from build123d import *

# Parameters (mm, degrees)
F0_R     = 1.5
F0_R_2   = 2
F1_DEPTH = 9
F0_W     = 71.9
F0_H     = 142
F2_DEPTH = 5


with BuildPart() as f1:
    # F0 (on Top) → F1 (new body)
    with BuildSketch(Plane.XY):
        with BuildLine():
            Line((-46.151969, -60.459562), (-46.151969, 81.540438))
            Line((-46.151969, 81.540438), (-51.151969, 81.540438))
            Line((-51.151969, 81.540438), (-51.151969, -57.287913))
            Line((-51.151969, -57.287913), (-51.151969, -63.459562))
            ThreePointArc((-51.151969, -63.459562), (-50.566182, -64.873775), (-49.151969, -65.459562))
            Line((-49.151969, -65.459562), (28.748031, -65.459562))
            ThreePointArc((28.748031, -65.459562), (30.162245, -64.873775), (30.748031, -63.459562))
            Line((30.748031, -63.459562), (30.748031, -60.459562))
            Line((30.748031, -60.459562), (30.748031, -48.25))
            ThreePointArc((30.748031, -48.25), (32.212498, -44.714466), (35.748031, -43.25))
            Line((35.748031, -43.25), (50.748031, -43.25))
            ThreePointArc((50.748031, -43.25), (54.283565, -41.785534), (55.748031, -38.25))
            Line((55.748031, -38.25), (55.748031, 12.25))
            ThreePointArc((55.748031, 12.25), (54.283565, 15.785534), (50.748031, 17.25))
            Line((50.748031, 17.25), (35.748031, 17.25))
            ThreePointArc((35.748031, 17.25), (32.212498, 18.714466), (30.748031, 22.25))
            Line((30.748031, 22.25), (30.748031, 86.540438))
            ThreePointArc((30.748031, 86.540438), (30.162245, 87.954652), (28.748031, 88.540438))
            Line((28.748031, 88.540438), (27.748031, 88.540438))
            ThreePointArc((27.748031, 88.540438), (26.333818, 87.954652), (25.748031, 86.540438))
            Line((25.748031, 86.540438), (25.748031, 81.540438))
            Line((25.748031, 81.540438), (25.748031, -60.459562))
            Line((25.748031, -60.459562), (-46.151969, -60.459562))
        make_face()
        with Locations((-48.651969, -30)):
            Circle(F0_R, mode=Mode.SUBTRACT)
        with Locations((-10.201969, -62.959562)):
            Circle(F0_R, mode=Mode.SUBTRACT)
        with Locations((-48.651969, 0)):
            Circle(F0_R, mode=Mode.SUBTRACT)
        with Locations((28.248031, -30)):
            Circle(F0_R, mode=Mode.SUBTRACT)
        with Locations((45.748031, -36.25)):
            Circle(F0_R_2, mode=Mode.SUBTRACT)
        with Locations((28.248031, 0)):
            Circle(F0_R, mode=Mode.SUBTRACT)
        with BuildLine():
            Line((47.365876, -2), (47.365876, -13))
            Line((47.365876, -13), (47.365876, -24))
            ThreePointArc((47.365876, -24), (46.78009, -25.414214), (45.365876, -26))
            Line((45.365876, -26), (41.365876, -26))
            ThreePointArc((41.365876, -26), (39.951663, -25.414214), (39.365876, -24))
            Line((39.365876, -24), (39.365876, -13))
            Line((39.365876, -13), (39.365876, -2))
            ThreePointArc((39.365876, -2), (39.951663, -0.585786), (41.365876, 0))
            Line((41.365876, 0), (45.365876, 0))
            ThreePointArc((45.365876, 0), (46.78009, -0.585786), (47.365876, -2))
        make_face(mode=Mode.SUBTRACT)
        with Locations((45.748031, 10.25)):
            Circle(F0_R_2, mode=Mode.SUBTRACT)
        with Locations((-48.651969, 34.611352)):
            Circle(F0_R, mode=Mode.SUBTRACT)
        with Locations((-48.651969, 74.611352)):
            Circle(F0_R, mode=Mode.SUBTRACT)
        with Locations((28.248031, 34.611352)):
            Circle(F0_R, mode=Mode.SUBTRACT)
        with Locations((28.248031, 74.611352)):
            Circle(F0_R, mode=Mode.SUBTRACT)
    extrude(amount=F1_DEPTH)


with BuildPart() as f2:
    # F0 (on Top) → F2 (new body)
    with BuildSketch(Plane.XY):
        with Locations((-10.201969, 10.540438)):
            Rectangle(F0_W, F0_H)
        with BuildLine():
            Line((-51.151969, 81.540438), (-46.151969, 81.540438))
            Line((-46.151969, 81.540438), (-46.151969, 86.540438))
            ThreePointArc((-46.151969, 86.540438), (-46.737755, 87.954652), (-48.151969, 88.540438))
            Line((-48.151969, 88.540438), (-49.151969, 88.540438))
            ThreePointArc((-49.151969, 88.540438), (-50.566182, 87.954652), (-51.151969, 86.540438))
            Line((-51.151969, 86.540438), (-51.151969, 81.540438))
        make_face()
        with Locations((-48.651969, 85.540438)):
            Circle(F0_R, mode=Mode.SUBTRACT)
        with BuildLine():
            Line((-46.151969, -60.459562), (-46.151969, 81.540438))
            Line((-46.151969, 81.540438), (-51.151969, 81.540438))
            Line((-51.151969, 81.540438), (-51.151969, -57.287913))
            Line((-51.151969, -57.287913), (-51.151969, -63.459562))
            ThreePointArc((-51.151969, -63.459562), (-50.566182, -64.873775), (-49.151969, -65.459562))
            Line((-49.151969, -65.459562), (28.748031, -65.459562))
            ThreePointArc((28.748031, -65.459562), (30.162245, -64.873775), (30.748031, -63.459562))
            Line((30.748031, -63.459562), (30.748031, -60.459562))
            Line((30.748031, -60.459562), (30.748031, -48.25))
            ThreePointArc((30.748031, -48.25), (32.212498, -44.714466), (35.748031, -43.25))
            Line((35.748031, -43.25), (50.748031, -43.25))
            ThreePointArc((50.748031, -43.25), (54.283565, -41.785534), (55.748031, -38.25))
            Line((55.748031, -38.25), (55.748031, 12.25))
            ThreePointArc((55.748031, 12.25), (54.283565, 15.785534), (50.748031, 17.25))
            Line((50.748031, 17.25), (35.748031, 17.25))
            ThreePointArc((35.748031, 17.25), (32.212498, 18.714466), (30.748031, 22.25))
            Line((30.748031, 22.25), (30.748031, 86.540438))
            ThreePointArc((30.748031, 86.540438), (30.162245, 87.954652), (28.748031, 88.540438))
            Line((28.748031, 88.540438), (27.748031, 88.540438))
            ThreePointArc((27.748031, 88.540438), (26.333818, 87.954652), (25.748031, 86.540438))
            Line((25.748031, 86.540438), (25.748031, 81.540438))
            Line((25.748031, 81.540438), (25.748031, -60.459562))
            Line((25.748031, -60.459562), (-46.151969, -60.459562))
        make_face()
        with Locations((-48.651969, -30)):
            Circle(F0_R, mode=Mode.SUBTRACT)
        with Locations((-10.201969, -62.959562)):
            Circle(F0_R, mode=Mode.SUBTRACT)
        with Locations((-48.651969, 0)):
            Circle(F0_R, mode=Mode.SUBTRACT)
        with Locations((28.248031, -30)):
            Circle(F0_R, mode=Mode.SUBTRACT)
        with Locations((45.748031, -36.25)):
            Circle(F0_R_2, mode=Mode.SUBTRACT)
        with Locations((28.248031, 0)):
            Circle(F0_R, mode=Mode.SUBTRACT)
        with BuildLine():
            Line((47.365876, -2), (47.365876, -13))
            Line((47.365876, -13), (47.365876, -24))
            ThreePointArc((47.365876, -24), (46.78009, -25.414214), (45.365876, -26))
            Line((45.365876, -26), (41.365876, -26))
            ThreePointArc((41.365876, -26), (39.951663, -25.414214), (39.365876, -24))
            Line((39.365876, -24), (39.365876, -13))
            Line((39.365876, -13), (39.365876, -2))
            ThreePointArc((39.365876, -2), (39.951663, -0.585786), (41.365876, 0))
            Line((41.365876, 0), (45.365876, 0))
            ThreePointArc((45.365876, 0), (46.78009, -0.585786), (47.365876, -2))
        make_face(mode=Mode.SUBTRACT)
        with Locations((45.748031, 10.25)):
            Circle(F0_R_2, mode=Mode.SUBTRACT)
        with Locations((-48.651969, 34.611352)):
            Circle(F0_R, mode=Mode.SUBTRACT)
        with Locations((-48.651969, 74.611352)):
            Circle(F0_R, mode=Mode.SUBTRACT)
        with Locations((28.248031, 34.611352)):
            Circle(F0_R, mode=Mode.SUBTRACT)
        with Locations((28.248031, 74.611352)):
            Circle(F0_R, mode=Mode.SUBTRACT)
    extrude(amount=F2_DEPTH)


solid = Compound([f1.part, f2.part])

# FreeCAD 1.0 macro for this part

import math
import FreeCAD as App
import Part
import Sketcher

V = App.Vector
Q = App.Units.Quantity

doc = App.newDocument("Part")
params = doc.addObject("Spreadsheet::Sheet", "Params")
for row, (alias, value) in enumerate([
    ("sketch1_diameter", "3 mm"),
    ("sketch1_diameter2", "4 mm"),
    ("sketch1_radius", "5.000001 mm"),
    ("sketch1_width", "5 mm"),
    ("sketch1_width2", "15 mm"),
    ("pad1_length", "9 mm"),
    ("sketch2_diameter", "3 mm"),
    ("sketch2_diameter2", "4 mm"),
    ("sketch2_radius", "5.000001 mm"),
    ("sketch2_width", "1 mm"),
    ("sketch2_width2", "15 mm"),
    ("pad2_length", "5 mm"),
], start=1):
    params.set(f"A{row}", alias)
    params.set(f"B{row}", "=" + value)
    params.setAlias(f"B{row}", alias)

body = doc.addObject("PartDesign::Body", "Body")

# Sketch on XY plane
sketch1 = body.newObject("Sketcher::SketchObject", "Sketch")
sketch1.AttachmentSupport = (doc.getObject("XY_Plane"), [""])
sketch1.MapMode = "FlatFace"
sketch1.addGeometry([
    Part.LineSegment(V(-46.151969, -60.459562, 0), V(-46.151969, 81.540438, 0)),  # 0
    Part.LineSegment(V(-46.151969, 81.540438, 0), V(-51.151969, 81.540438, 0)),  # 1
    Part.LineSegment(V(-51.151969, 81.540438, 0), V(-51.151969, -63.459562, 0)),  # 2
    Part.ArcOfCircle(Part.Circle(V(-49.151967, -63.45956, 0), V(0, 0, 1), 2.000002), math.radians(-179.999945), math.radians(-90.000055)),  # 3
    Part.LineSegment(V(-49.151969, -65.459562, 0), V(28.748031, -65.459562, 0)),  # 4
    Part.ArcOfCircle(Part.Circle(V(28.748031, -63.459562, 0), V(0, 0, 1), 2), math.radians(-89.999994), math.radians(-0.000006)),  # 5
    Part.LineSegment(V(30.748031, -63.459562, 0), V(30.748031, -48.25, 0)),  # 6
    Part.ArcOfCircle(Part.Circle(V(35.748032, -48.250001, 0), V(0, 0, 1), 5.000001), math.radians(90.000016), math.radians(179.999984)),  # 7
    Part.LineSegment(V(35.748031, -43.25, 0), V(50.748031, -43.25, 0)),  # 8
    Part.ArcOfCircle(Part.Circle(V(50.748031, -38.25, 0), V(0, 0, 1), 5), math.radians(-90.000004), math.radians(0.000004)),  # 9
    Part.LineSegment(V(55.748031, -38.25, 0), V(55.748031, 12.25, 0)),  # 10
    Part.ArcOfCircle(Part.Circle(V(50.748031, 12.25, 0), V(0, 0, 1), 5), math.radians(-0.000004), math.radians(90.000004)),  # 11
    Part.LineSegment(V(50.748031, 17.25, 0), V(35.748031, 17.25, 0)),  # 12
    Part.ArcOfCircle(Part.Circle(V(35.748032, 22.250001, 0), V(0, 0, 1), 5.000001), math.radians(-179.999984), math.radians(-90.000016)),  # 13
    Part.LineSegment(V(30.748031, 22.25, 0), V(30.748031, 86.540438, 0)),  # 14
    Part.ArcOfCircle(Part.Circle(V(28.748032, 86.540439, 0), V(0, 0, 1), 1.999999), math.radians(-0.000043), math.radians(90.000043)),  # 15
    Part.LineSegment(V(28.748031, 88.540438, 0), V(27.748031, 88.540438, 0)),  # 16
    Part.ArcOfCircle(Part.Circle(V(27.748031, 86.540438, 0), V(0, 0, 1), 2), math.radians(90.000006), math.radians(179.999994)),  # 17
    Part.LineSegment(V(25.748031, 86.540438, 0), V(25.748031, -60.459562, 0)),  # 18
    Part.LineSegment(V(25.748031, -60.459562, 0), V(-46.151969, -60.459562, 0)),  # 19
    Part.Circle(V(-48.651969, -30, 0), V(0, 0, 1), 1.5),  # 20
    Part.Circle(V(-10.201969, -62.959562, 0), V(0, 0, 1), 1.5),  # 21
    Part.Circle(V(-48.651969, 0, 0), V(0, 0, 1), 1.5),  # 22
    Part.Circle(V(28.248031, -30, 0), V(0, 0, 1), 1.5),  # 23
    Part.Circle(V(45.748031, -36.25, 0), V(0, 0, 1), 2),  # 24
    Part.ArcOfCircle(Part.Circle(V(45.365877, -1.999999, 0), V(0, 0, 1), 1.999999), math.radians(-0.000043), math.radians(90.000043)),  # 25
    Part.LineSegment(V(47.365876, -2, 0), V(47.365876, -24, 0)),  # 26
    Part.ArcOfCircle(Part.Circle(V(45.365877, -24.000001, 0), V(0, 0, 1), 1.999999), math.radians(-90.000043), math.radians(0.000043)),  # 27
    Part.LineSegment(V(45.365876, -26, 0), V(41.365876, -26, 0)),  # 28
    Part.ArcOfCircle(Part.Circle(V(41.365876, -24, 0), V(0, 0, 1), 2), math.radians(-179.999994), math.radians(-90.000006)),  # 29
    Part.LineSegment(V(39.365876, -24, 0), V(39.365876, -2, 0)),  # 30
    Part.ArcOfCircle(Part.Circle(V(41.365876, -2, 0), V(0, 0, 1), 2), math.radians(90.000006), math.radians(179.999994)),  # 31
    Part.LineSegment(V(41.365876, 0, 0), V(45.365876, 0, 0)),  # 32
    Part.Circle(V(28.248031, 0, 0), V(0, 0, 1), 1.5),  # 33
    Part.Circle(V(-48.651969, 34.611352, 0), V(0, 0, 1), 1.5),  # 34
    Part.Circle(V(-48.651969, 74.611352, 0), V(0, 0, 1), 1.5),  # 35
    Part.Circle(V(45.748031, 10.25, 0), V(0, 0, 1), 2),  # 36
    Part.Circle(V(28.248031, 34.611352, 0), V(0, 0, 1), 1.5),  # 37
    Part.Circle(V(28.248031, 74.611352, 0), V(0, 0, 1), 1.5),  # 38
], False)
sketch1.addConstraint([
    Sketcher.Constraint("Coincident", 0, 2, 1, 1),
    Sketcher.Constraint("Coincident", 1, 2, 2, 1),
    Sketcher.Constraint("Tangent", 2, 2, 3, 1),
    Sketcher.Constraint("Tangent", 3, 2, 4, 1),
    Sketcher.Constraint("Tangent", 4, 2, 5, 1),
    Sketcher.Constraint("Tangent", 5, 2, 6, 1),
    Sketcher.Constraint("Tangent", 6, 2, 7, 2),
    Sketcher.Constraint("Tangent", 7, 1, 8, 1),
    Sketcher.Constraint("Tangent", 8, 2, 9, 1),
    Sketcher.Constraint("Tangent", 9, 2, 10, 1),
    Sketcher.Constraint("Tangent", 10, 2, 11, 1),
    Sketcher.Constraint("Tangent", 11, 2, 12, 1),
    Sketcher.Constraint("Tangent", 12, 2, 13, 2),
    Sketcher.Constraint("Tangent", 13, 1, 14, 1),
    Sketcher.Constraint("Tangent", 14, 2, 15, 1),
    Sketcher.Constraint("Tangent", 15, 2, 16, 1),
    Sketcher.Constraint("Tangent", 16, 2, 17, 1),
    Sketcher.Constraint("Tangent", 17, 2, 18, 1),
    Sketcher.Constraint("Coincident", 18, 2, 19, 1),
    Sketcher.Constraint("Coincident", 19, 2, 0, 1),
    Sketcher.Constraint("Tangent", 25, 1, 26, 1),
    Sketcher.Constraint("Tangent", 26, 2, 27, 2),
    Sketcher.Constraint("Tangent", 27, 1, 28, 1),
    Sketcher.Constraint("Tangent", 28, 2, 29, 2),
    Sketcher.Constraint("Tangent", 29, 1, 30, 1),
    Sketcher.Constraint("Tangent", 30, 2, 31, 2),
    Sketcher.Constraint("Tangent", 31, 1, 32, 1),
    Sketcher.Constraint("Tangent", 32, 2, 25, 2),
    Sketcher.Constraint("Vertical", 0),
    Sketcher.Constraint("Horizontal", 1),
    Sketcher.Constraint("Vertical", 2),
    Sketcher.Constraint("Horizontal", 4),
    Sketcher.Constraint("Vertical", 6),
    Sketcher.Constraint("Horizontal", 8),
    Sketcher.Constraint("Vertical", 10),
    Sketcher.Constraint("Horizontal", 12),
    Sketcher.Constraint("Vertical", 14),
    Sketcher.Constraint("Horizontal", 16),
    Sketcher.Constraint("Vertical", 18),
    Sketcher.Constraint("Horizontal", 19),
    Sketcher.Constraint("Vertical", 26),
    Sketcher.Constraint("Horizontal", 28),
    Sketcher.Constraint("Vertical", 30),
    Sketcher.Constraint("Horizontal", 32),
    Sketcher.Constraint("Equal", 3, 5),
    Sketcher.Constraint("Equal", 7, 9),
    Sketcher.Constraint("Equal", 9, 11),
    Sketcher.Constraint("Equal", 11, 13),
    Sketcher.Constraint("Equal", 5, 15),
    Sketcher.Constraint("Equal", 15, 17),
    Sketcher.Constraint("Equal", 20, 21),
    Sketcher.Constraint("Equal", 21, 22),
    Sketcher.Constraint("Equal", 22, 23),
    Sketcher.Constraint("Equal", 17, 24),
    Sketcher.Constraint("Equal", 24, 25),
    Sketcher.Constraint("Equal", 25, 27),
    Sketcher.Constraint("Equal", 27, 29),
    Sketcher.Constraint("Equal", 29, 31),
    Sketcher.Constraint("Equal", 23, 33),
    Sketcher.Constraint("Equal", 33, 34),
    Sketcher.Constraint("Equal", 34, 35),
    Sketcher.Constraint("Equal", 31, 36),
    Sketcher.Constraint("Equal", 35, 37),
    Sketcher.Constraint("Equal", 37, 38),
    Sketcher.Constraint("PointOnObject", 22, 3, -1),
    Sketcher.Constraint("PointOnObject", 33, 3, -1),
    Sketcher.Constraint("PointOnObject", 31, 1, -1),
    Sketcher.Constraint("Horizontal", 20, 3, 23, 3),
    Sketcher.Constraint("Horizontal", 34, 3, 37, 3),
    Sketcher.Constraint("Horizontal", 35, 3, 38, 3),
    Sketcher.Constraint("Vertical", 7, 3, 13, 3),
    Sketcher.Constraint("Vertical", 20, 3, 22, 3),
    Sketcher.Constraint("Vertical", 23, 3, 33, 3),
    Sketcher.Constraint("Vertical", 22, 3, 34, 3),
    Sketcher.Constraint("Vertical", 34, 3, 35, 3),
    Sketcher.Constraint("Vertical", 24, 3, 36, 3),
    Sketcher.Constraint("Vertical", 33, 3, 37, 3),
    Sketcher.Constraint("Vertical", 37, 3, 38, 3),
    Sketcher.Constraint("Diameter", 20, Q("3 mm")),
    Sketcher.Constraint("Diameter", 24, Q("4 mm")),
    Sketcher.Constraint("Radius", 7, Q("5.000001 mm")),
    Sketcher.Constraint("DistanceX", 1, 2, 1, 1, Q("5 mm")),
    Sketcher.Constraint("DistanceX", 8, 1, 8, 2, Q("15 mm")),
    Sketcher.Constraint("DistanceX", 16, 2, 16, 1, Q("1 mm")),
    Sketcher.Constraint("DistanceX", 28, 2, 28, 1, Q("4 mm")),
    Sketcher.Constraint("DistanceY", 0, 1, 0, 2, Q("142 mm")),
    Sketcher.Constraint("DistanceY", 2, 2, 2, 1, Q("145 mm")),
    Sketcher.Constraint("DistanceY", 18, 2, 18, 1, Q("147 mm")),
    Sketcher.Constraint("DistanceY", 26, 2, 26, 1, Q("22 mm")),
    Sketcher.Constraint("DistanceX", 4, 1, 4, 2, Q("77.9 mm")),
    Sketcher.Constraint("DistanceY", 10, 1, 10, 2, Q("50.5 mm")),
    Sketcher.Constraint("DistanceY", 20, 3, -1, 1, Q("30 mm")),
    Sketcher.Constraint("DistanceX", 24, 3, 9, 3, Q("5 mm")),
    Sketcher.Constraint("DistanceY", 9, 3, 24, 3, Q("2 mm")),
    Sketcher.Constraint("DistanceY", 34, 3, 35, 3, Q("40 mm")),
    Sketcher.Constraint("DistanceY", 36, 3, 11, 3, Q("2 mm")),
    Sketcher.Constraint("DistanceX", 3, 3, 20, 3, Q("0.499998 mm")),
    Sketcher.Constraint("DistanceY", 3, 3, 21, 3, Q("0.499998 mm")),
    Sketcher.Constraint("DistanceX", 23, 3, 7, 3, Q("7.500001 mm")),
    Sketcher.Constraint("DistanceY", 7, 3, -1, 1, Q("48.250001 mm")),
    Sketcher.Constraint("DistanceX", 3, 3, 21, 3, Q("38.949998 mm")),
    Sketcher.Constraint("DistanceY", 6, 1, 6, 2, Q("15.209562 mm")),
    Sketcher.Constraint("DistanceX", -1, 1, 5, 3, Q("28.748031 mm")),
    Sketcher.Constraint("DistanceY", -1, 1, 34, 3, Q("34.611352 mm")),
    Sketcher.Constraint("DistanceX", -1, 1, 25, 3, Q("45.365877 mm")),
])
sketch1.setExpression("Constraints[78]", "Params.sketch1_diameter")
sketch1.setExpression("Constraints[79]", "Params.sketch1_diameter2")
sketch1.setExpression("Constraints[80]", "Params.sketch1_radius")
sketch1.setExpression("Constraints[81]", "Params.sketch1_width")
sketch1.setExpression("Constraints[82]", "Params.sketch1_width2")
pad1 = body.newObject("PartDesign::Pad", "Pad")
pad1.Profile = sketch1
pad1.setExpression("Length", "Params.pad1_length")
body2 = doc.addObject("PartDesign::Body", "Body001")

# Sketch on XY plane
sketch2 = body2.newObject("Sketcher::SketchObject", "Sketch001")
sketch2.AttachmentSupport = (doc.getObject("XY_Plane001"), [""])
sketch2.MapMode = "FlatFace"
sketch2.addGeometry([
    Part.LineSegment(V(25.748031, 81.540438, 0), V(-46.151969, 81.540438, 0)),  # 0
    Part.LineSegment(V(-46.151969, 81.540438, 0), V(-46.151969, 86.540438, 0)),  # 1
    Part.ArcOfCircle(Part.Circle(V(-48.151968, 86.540439, 0), V(0, 0, 1), 1.999999), math.radians(-0.000043), math.radians(90.000043)),  # 2
    Part.LineSegment(V(-48.151969, 88.540438, 0), V(-49.151969, 88.540438, 0)),  # 3
    Part.ArcOfCircle(Part.Circle(V(-49.151969, 86.540438, 0), V(0, 0, 1), 2), math.radians(90.000006), math.radians(179.999994)),  # 4
    Part.LineSegment(V(-51.151969, 86.540438, 0), V(-51.151969, -63.459562, 0)),  # 5
    Part.ArcOfCircle(Part.Circle(V(-49.151967, -63.45956, 0), V(0, 0, 1), 2.000002), math.radians(-179.999945), math.radians(-90.000055)),  # 6
    Part.LineSegment(V(-49.151969, -65.459562, 0), V(28.748031, -65.459562, 0)),  # 7
    Part.ArcOfCircle(Part.Circle(V(28.748031, -63.459562, 0), V(0, 0, 1), 2), math.radians(-89.999994), math.radians(-0.000006)),  # 8
    Part.LineSegment(V(30.748031, -63.459562, 0), V(30.748031, -48.25, 0)),  # 9
    Part.ArcOfCircle(Part.Circle(V(35.748032, -48.250001, 0), V(0, 0, 1), 5.000001), math.radians(90.000016), math.radians(179.999984)),  # 10
    Part.LineSegment(V(35.748031, -43.25, 0), V(50.748031, -43.25, 0)),  # 11
    Part.ArcOfCircle(Part.Circle(V(50.748031, -38.25, 0), V(0, 0, 1), 5), math.radians(-90.000004), math.radians(0.000004)),  # 12
    Part.LineSegment(V(55.748031, -38.25, 0), V(55.748031, 12.25, 0)),  # 13
    Part.ArcOfCircle(Part.Circle(V(50.748031, 12.25, 0), V(0, 0, 1), 5), math.radians(-0.000004), math.radians(90.000004)),  # 14
    Part.LineSegment(V(50.748031, 17.25, 0), V(35.748031, 17.25, 0)),  # 15
    Part.ArcOfCircle(Part.Circle(V(35.748032, 22.250001, 0), V(0, 0, 1), 5.000001), math.radians(-179.999984), math.radians(-90.000016)),  # 16
    Part.LineSegment(V(30.748031, 22.25, 0), V(30.748031, 86.540438, 0)),  # 17
    Part.ArcOfCircle(Part.Circle(V(28.748032, 86.540439, 0), V(0, 0, 1), 1.999999), math.radians(-0.000043), math.radians(90.000043)),  # 18
    Part.LineSegment(V(28.748031, 88.540438, 0), V(27.748031, 88.540438, 0)),  # 19
    Part.ArcOfCircle(Part.Circle(V(27.748031, 86.540438, 0), V(0, 0, 1), 2), math.radians(90.000006), math.radians(179.999994)),  # 20
    Part.LineSegment(V(25.748031, 86.540438, 0), V(25.748031, 81.540438, 0)),  # 21
    Part.Circle(V(-48.651969, -30, 0), V(0, 0, 1), 1.5),  # 22
    Part.Circle(V(-10.201969, -62.959562, 0), V(0, 0, 1), 1.5),  # 23
    Part.Circle(V(-48.651969, 0, 0), V(0, 0, 1), 1.5),  # 24
    Part.Circle(V(28.248031, -30, 0), V(0, 0, 1), 1.5),  # 25
    Part.Circle(V(45.748031, -36.25, 0), V(0, 0, 1), 2),  # 26
    Part.ArcOfCircle(Part.Circle(V(45.365877, -1.999999, 0), V(0, 0, 1), 1.999999), math.radians(-0.000043), math.radians(90.000043)),  # 27
    Part.LineSegment(V(47.365876, -2, 0), V(47.365876, -24, 0)),  # 28
    Part.ArcOfCircle(Part.Circle(V(45.365877, -24.000001, 0), V(0, 0, 1), 1.999999), math.radians(-90.000043), math.radians(0.000043)),  # 29
    Part.LineSegment(V(45.365876, -26, 0), V(41.365876, -26, 0)),  # 30
    Part.ArcOfCircle(Part.Circle(V(41.365876, -24, 0), V(0, 0, 1), 2), math.radians(-179.999994), math.radians(-90.000006)),  # 31
    Part.LineSegment(V(39.365876, -24, 0), V(39.365876, -2, 0)),  # 32
    Part.ArcOfCircle(Part.Circle(V(41.365876, -2, 0), V(0, 0, 1), 2), math.radians(90.000006), math.radians(179.999994)),  # 33
    Part.LineSegment(V(41.365876, 0, 0), V(45.365876, 0, 0)),  # 34
    Part.Circle(V(28.248031, 0, 0), V(0, 0, 1), 1.5),  # 35
    Part.Circle(V(45.748031, 10.25, 0), V(0, 0, 1), 2),  # 36
    Part.Circle(V(-48.651969, 34.611352, 0), V(0, 0, 1), 1.5),  # 37
    Part.Circle(V(-48.651969, 74.611352, 0), V(0, 0, 1), 1.5),  # 38
    Part.Circle(V(-48.651969, 85.540438, 0), V(0, 0, 1), 1.5),  # 39
    Part.Circle(V(28.248031, 34.611352, 0), V(0, 0, 1), 1.5),  # 40
    Part.Circle(V(28.248031, 74.611352, 0), V(0, 0, 1), 1.5),  # 41
], False)
sketch2.addConstraint([
    Sketcher.Constraint("Coincident", 0, 2, 1, 1),
    Sketcher.Constraint("Tangent", 1, 2, 2, 1),
    Sketcher.Constraint("Tangent", 2, 2, 3, 1),
    Sketcher.Constraint("Tangent", 3, 2, 4, 1),
    Sketcher.Constraint("Tangent", 4, 2, 5, 1),
    Sketcher.Constraint("Tangent", 5, 2, 6, 1),
    Sketcher.Constraint("Tangent", 6, 2, 7, 1),
    Sketcher.Constraint("Tangent", 7, 2, 8, 1),
    Sketcher.Constraint("Tangent", 8, 2, 9, 1),
    Sketcher.Constraint("Tangent", 9, 2, 10, 2),
    Sketcher.Constraint("Tangent", 10, 1, 11, 1),
    Sketcher.Constraint("Tangent", 11, 2, 12, 1),
    Sketcher.Constraint("Tangent", 12, 2, 13, 1),
    Sketcher.Constraint("Tangent", 13, 2, 14, 1),
    Sketcher.Constraint("Tangent", 14, 2, 15, 1),
    Sketcher.Constraint("Tangent", 15, 2, 16, 2),
    Sketcher.Constraint("Tangent", 16, 1, 17, 1),
    Sketcher.Constraint("Tangent", 17, 2, 18, 1),
    Sketcher.Constraint("Tangent", 18, 2, 19, 1),
    Sketcher.Constraint("Tangent", 19, 2, 20, 1),
    Sketcher.Constraint("Tangent", 20, 2, 21, 1),
    Sketcher.Constraint("Coincident", 21, 2, 0, 1),
    Sketcher.Constraint("Tangent", 27, 1, 28, 1),
    Sketcher.Constraint("Tangent", 28, 2, 29, 2),
    Sketcher.Constraint("Tangent", 29, 1, 30, 1),
    Sketcher.Constraint("Tangent", 30, 2, 31, 2),
    Sketcher.Constraint("Tangent", 31, 1, 32, 1),
    Sketcher.Constraint("Tangent", 32, 2, 33, 2),
    Sketcher.Constraint("Tangent", 33, 1, 34, 1),
    Sketcher.Constraint("Tangent", 34, 2, 27, 2),
    Sketcher.Constraint("Horizontal", 0),
    Sketcher.Constraint("Vertical", 1),
    Sketcher.Constraint("Horizontal", 3),
    Sketcher.Constraint("Vertical", 5),
    Sketcher.Constraint("Horizontal", 7),
    Sketcher.Constraint("Vertical", 9),
    Sketcher.Constraint("Horizontal", 11),
    Sketcher.Constraint("Vertical", 13),
    Sketcher.Constraint("Horizontal", 15),
    Sketcher.Constraint("Vertical", 17),
    Sketcher.Constraint("Horizontal", 19),
    Sketcher.Constraint("Vertical", 21),
    Sketcher.Constraint("Vertical", 28),
    Sketcher.Constraint("Horizontal", 30),
    Sketcher.Constraint("Vertical", 32),
    Sketcher.Constraint("Horizontal", 34),
    Sketcher.Constraint("Equal", 2, 4),
    Sketcher.Constraint("Equal", 4, 6),
    Sketcher.Constraint("Equal", 6, 8),
    Sketcher.Constraint("Equal", 10, 12),
    Sketcher.Constraint("Equal", 12, 14),
    Sketcher.Constraint("Equal", 14, 16),
    Sketcher.Constraint("Equal", 8, 18),
    Sketcher.Constraint("Equal", 18, 20),
    Sketcher.Constraint("Equal", 22, 23),
    Sketcher.Constraint("Equal", 23, 24),
    Sketcher.Constraint("Equal", 24, 25),
    Sketcher.Constraint("Equal", 20, 26),
    Sketcher.Constraint("Equal", 26, 27),
    Sketcher.Constraint("Equal", 27, 29),
    Sketcher.Constraint("Equal", 29, 31),
    Sketcher.Constraint("Equal", 31, 33),
    Sketcher.Constraint("Equal", 25, 35),
    Sketcher.Constraint("Equal", 33, 36),
    Sketcher.Constraint("Equal", 35, 37),
    Sketcher.Constraint("Equal", 37, 38),
    Sketcher.Constraint("Equal", 38, 39),
    Sketcher.Constraint("Equal", 39, 40),
    Sketcher.Constraint("Equal", 40, 41),
    Sketcher.Constraint("PointOnObject", 24, 3, -1),
    Sketcher.Constraint("PointOnObject", 35, 3, -1),
    Sketcher.Constraint("PointOnObject", 33, 1, -1),
    Sketcher.Constraint("Horizontal", 4, 3, 18, 3),
    Sketcher.Constraint("Horizontal", 22, 3, 25, 3),
    Sketcher.Constraint("Horizontal", 37, 3, 40, 3),
    Sketcher.Constraint("Horizontal", 38, 3, 41, 3),
    Sketcher.Constraint("Vertical", 10, 3, 16, 3),
    Sketcher.Constraint("Vertical", 22, 3, 24, 3),
    Sketcher.Constraint("Vertical", 25, 3, 35, 3),
    Sketcher.Constraint("Vertical", 26, 3, 36, 3),
    Sketcher.Constraint("Vertical", 24, 3, 37, 3),
    Sketcher.Constraint("Vertical", 37, 3, 38, 3),
    Sketcher.Constraint("Vertical", 38, 3, 39, 3),
    Sketcher.Constraint("Vertical", 35, 3, 40, 3),
    Sketcher.Constraint("Vertical", 40, 3, 41, 3),
    Sketcher.Constraint("Equal", 3, 19),
    Sketcher.Constraint("Diameter", 22, Q("3 mm")),
    Sketcher.Constraint("Diameter", 26, Q("4 mm")),
    Sketcher.Constraint("Radius", 10, Q("5.000001 mm")),
    Sketcher.Constraint("DistanceX", 3, 2, 3, 1, Q("1 mm")),
    Sketcher.Constraint("DistanceX", 11, 1, 11, 2, Q("15 mm")),
    Sketcher.Constraint("DistanceX", 30, 2, 30, 1, Q("4 mm")),
    Sketcher.Constraint("DistanceY", 1, 1, 1, 2, Q("5 mm")),
    Sketcher.Constraint("DistanceY", 5, 2, 5, 1, Q("150 mm")),
    Sketcher.Constraint("DistanceY", 28, 2, 28, 1, Q("22 mm")),
    Sketcher.Constraint("DistanceX", 0, 2, 0, 1, Q("71.9 mm")),
    Sketcher.Constraint("DistanceY", 13, 1, 13, 2, Q("50.5 mm")),
    Sketcher.Constraint("DistanceY", 22, 3, -1, 1, Q("30 mm")),
    Sketcher.Constraint("DistanceX", 26, 3, 12, 3, Q("5 mm")),
    Sketcher.Constraint("DistanceY", 12, 3, 26, 3, Q("2 mm")),
    Sketcher.Constraint("DistanceY", 36, 3, 14, 3, Q("2 mm")),
    Sketcher.Constraint("DistanceY", 37, 3, 38, 3, Q("40 mm")),
    Sketcher.Constraint("DistanceY", 39, 3, 4, 3, Q("1 mm")),
    Sketcher.Constraint("DistanceX", 6, 3, 22, 3, Q("0.499998 mm")),
    Sketcher.Constraint("DistanceY", 6, 3, 23, 3, Q("0.499998 mm")),
    Sketcher.Constraint("DistanceX", 25, 3, 10, 3, Q("7.500001 mm")),
    Sketcher.Constraint("DistanceY", 10, 3, -1, 1, Q("48.250001 mm")),
    Sketcher.Constraint("DistanceX", 6, 3, 23, 3, Q("38.949998 mm")),
    Sketcher.Constraint("DistanceY", 9, 1, 9, 2, Q("15.209562 mm")),
    Sketcher.Constraint("DistanceX", 4, 3, -1, 1, Q("49.151969 mm")),
    Sketcher.Constraint("DistanceY", -1, 1, 37, 3, Q("34.611352 mm")),
    Sketcher.Constraint("DistanceX", -1, 1, 27, 3, Q("45.365877 mm")),
])
sketch2.setExpression("Constraints[86]", "Params.sketch2_diameter")
sketch2.setExpression("Constraints[87]", "Params.sketch2_diameter2")
sketch2.setExpression("Constraints[88]", "Params.sketch2_radius")
sketch2.setExpression("Constraints[89]", "Params.sketch2_width")
sketch2.setExpression("Constraints[90]", "Params.sketch2_width2")
pad2 = body2.newObject("PartDesign::Pad", "Pad001")
pad2.Profile = sketch2
pad2.setExpression("Length", "Params.pad2_length")

doc.recompute()
